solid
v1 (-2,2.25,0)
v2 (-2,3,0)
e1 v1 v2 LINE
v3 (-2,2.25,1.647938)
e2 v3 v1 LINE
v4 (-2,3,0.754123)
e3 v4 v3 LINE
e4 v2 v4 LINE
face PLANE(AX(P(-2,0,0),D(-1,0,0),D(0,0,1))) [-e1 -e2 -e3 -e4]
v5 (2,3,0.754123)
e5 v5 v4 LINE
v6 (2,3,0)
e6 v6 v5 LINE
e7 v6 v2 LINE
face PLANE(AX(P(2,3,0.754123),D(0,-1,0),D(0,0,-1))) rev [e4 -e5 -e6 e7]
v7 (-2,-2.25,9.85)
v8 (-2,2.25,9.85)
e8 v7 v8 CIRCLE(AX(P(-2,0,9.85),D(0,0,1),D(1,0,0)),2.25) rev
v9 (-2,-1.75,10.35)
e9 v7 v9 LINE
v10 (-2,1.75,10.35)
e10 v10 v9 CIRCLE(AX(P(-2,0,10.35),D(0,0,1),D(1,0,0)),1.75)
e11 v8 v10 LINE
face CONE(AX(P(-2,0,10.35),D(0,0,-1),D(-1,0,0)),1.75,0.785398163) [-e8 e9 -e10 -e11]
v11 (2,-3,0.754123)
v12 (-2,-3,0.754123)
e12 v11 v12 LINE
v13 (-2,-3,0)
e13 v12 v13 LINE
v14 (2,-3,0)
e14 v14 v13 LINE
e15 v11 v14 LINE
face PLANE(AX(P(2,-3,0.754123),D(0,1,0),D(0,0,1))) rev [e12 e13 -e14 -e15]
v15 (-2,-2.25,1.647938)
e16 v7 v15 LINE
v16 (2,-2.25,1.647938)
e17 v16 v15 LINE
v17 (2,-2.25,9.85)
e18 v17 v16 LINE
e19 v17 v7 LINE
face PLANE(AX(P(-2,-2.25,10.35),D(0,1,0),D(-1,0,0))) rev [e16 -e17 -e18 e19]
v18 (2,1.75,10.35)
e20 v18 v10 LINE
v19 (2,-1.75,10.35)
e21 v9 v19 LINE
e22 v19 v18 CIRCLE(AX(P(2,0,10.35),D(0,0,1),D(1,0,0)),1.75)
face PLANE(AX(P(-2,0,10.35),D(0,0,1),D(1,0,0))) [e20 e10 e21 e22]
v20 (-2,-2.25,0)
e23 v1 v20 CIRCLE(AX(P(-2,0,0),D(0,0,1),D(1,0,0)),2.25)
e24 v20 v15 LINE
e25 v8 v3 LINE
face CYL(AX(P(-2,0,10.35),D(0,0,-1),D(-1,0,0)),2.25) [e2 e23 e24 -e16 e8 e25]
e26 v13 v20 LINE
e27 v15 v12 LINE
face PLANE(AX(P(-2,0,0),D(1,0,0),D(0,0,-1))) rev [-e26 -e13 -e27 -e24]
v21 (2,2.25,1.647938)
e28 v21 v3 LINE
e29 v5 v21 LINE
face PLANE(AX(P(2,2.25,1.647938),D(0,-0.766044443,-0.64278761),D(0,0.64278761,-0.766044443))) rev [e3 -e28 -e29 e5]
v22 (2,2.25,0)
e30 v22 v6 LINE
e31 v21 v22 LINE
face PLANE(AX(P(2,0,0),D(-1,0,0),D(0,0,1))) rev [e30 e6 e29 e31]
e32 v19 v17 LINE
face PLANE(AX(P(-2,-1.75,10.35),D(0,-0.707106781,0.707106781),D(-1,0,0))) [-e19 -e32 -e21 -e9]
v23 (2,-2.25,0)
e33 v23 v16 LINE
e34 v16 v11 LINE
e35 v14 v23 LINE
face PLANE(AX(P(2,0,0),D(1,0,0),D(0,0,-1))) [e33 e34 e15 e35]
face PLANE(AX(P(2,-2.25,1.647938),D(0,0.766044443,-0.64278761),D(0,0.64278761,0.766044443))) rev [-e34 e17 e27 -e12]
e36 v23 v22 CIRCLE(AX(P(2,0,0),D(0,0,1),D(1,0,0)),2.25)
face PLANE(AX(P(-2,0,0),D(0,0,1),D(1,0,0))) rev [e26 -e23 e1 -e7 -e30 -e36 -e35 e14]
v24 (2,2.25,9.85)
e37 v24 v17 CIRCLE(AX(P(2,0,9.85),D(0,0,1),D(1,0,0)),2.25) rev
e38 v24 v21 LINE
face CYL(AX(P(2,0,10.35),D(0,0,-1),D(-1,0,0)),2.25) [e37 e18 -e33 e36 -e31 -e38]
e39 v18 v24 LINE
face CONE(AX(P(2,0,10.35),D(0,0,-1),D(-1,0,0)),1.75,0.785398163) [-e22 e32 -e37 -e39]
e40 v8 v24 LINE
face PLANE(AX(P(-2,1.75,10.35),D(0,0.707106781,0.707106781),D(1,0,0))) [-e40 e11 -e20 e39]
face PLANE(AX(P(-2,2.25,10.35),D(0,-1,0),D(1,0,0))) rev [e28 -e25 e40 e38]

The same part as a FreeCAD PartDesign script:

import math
import FreeCAD as App
import Part
import Sketcher
from FreeCAD import Vector
Q = App.Units.Quantity


def edges_at(feature, points):
    """Names of the edges that pass closest to the given points."""
    edges = feature.Shape.Edges
    near = lambda p: min(range(len(edges)), key=lambda i: edges[i].distToShape(Part.Vertex(*p))[0])
    return sorted({f"Edge{near(p) + 1}" for p in points})


def add_polygon(sketch, points):
    """Adds a closed chain of lines whose ends are joined by coincident constraints."""
    first, n = sketch.GeometryCount, len(points)
    for a, b in zip(points, points[1:] + points[:1]):
        sketch.addGeometry(Part.LineSegment(App.Vector(*a, 0), App.Vector(*b, 0)), False)
    for i in range(n):
        sketch.addConstraint(Sketcher.Constraint("Coincident", first + i, 2, first + (i + 1) % n, 1))

doc = App.newDocument("Part")
body = doc.addObject("PartDesign::Body", "Body")

# Sketch on XY plane
sketch1 = body.newObject("Sketcher::SketchObject", "Sketch")
sketch1.AttachmentSupport = (doc.getObject("XY_Plane"), [""])
sketch1.MapMode = "FlatFace"
sketch1.addGeometry([
    Part.LineSegment(Vector(2, 2.2, 0), Vector(-2, 2.2, 0)),
    Part.ArcOfCircle(Part.Circle(Vector(-2, 0, 0), Vector(0, 0, 1), 2.2), math.radians(90), math.radians(270)),
    Part.LineSegment(Vector(-2, -2.2, 0), Vector(2, -2.2, 0)),
    Part.ArcOfCircle(Part.Circle(Vector(2, 0, 0), Vector(0, 0, 1), 2.2), math.radians(-90), math.radians(90)),
], False)
sketch1.addConstraint([
    Sketcher.Constraint("Tangent", 0, 2, 1, 1),
    Sketcher.Constraint("Tangent", 1, 2, 2, 1),
    Sketcher.Constraint("Tangent", 2, 2, 3, 1),
    Sketcher.Constraint("Tangent", 3, 2, 0, 1),
    Sketcher.Constraint("Horizontal", 0),
    Sketcher.Constraint("Horizontal", 2),
    Sketcher.Constraint("Symmetric", 1, 3, 3, 3, -1, 1),
    Sketcher.Constraint("DistanceX", 0, 2, 0, 1, Q("4 mm")),
    Sketcher.Constraint("Radius", 1, Q("2.25 mm")),
])
pad1 = body.newObject("PartDesign::Pad", "Pad")
pad1.Profile = sketch1
pad1.Length = 10.35

# Sketch on YZ plane
sketch2 = body.newObject("Sketcher::SketchObject", "Sketch001")
sketch2.AttachmentSupport = (doc.getObject("YZ_Plane"), [""])
sketch2.MapMode = "FlatFace"
add_polygon(sketch2, [(3, 0.8), (2.2, 1.6), (2.2, 0), (3, 0)])  # lines 0-3
add_polygon(sketch2, [(-2.2, 0), (-2.2, 1.6), (-3, 0.8), (-3, 0)])  # lines 4-7
sketch2.addConstraint([
    Sketcher.Constraint("Vertical", 1),
    Sketcher.Constraint("Horizontal", 2),
    Sketcher.Constraint("Vertical", 3),
    Sketcher.Constraint("Vertical", 4),
    Sketcher.Constraint("Vertical", 6),
    Sketcher.Constraint("Horizontal", 7),
    Sketcher.Constraint("Symmetric", 2, 2, 6, 2, -1, 1),
    Sketcher.Constraint("Symmetric", 0, 2, 4, 2, -2),
    Sketcher.Constraint("PointOnObject", 1, 2, -1),
    Sketcher.Constraint("Horizontal", 3, 2, 5, 2),
    Sketcher.Constraint("Angle", 0, Q("130 deg")),
    Sketcher.Constraint("DistanceX", -1, 1, 2, 2, Q("3 mm")),
    Sketcher.Constraint("DistanceX", 2, 1, 2, 2, Q("0.75 mm")),
    Sketcher.Constraint("DistanceY", 1, 2, 1, 1, Q("1.647938 mm")),
])
pad2 = body.newObject("PartDesign::Pad", "Pad001")
pad2.Profile = sketch2
pad2.Type = "TwoLengths"
pad2.Length = 2
pad2.Length2 = 2
doc.recompute()

chamfer = body.newObject("PartDesign::Chamfer", "Chamfer")
chamfer.Base = (pad2, edges_at(pad2, [
    (4.25, 0, 10.35),
    (0, 2.25, 10.35),
    (-4.25, 0, 10.35),
    (0, -2.25, 10.35),
]))
chamfer.Size = 0.5

doc.recompute()
